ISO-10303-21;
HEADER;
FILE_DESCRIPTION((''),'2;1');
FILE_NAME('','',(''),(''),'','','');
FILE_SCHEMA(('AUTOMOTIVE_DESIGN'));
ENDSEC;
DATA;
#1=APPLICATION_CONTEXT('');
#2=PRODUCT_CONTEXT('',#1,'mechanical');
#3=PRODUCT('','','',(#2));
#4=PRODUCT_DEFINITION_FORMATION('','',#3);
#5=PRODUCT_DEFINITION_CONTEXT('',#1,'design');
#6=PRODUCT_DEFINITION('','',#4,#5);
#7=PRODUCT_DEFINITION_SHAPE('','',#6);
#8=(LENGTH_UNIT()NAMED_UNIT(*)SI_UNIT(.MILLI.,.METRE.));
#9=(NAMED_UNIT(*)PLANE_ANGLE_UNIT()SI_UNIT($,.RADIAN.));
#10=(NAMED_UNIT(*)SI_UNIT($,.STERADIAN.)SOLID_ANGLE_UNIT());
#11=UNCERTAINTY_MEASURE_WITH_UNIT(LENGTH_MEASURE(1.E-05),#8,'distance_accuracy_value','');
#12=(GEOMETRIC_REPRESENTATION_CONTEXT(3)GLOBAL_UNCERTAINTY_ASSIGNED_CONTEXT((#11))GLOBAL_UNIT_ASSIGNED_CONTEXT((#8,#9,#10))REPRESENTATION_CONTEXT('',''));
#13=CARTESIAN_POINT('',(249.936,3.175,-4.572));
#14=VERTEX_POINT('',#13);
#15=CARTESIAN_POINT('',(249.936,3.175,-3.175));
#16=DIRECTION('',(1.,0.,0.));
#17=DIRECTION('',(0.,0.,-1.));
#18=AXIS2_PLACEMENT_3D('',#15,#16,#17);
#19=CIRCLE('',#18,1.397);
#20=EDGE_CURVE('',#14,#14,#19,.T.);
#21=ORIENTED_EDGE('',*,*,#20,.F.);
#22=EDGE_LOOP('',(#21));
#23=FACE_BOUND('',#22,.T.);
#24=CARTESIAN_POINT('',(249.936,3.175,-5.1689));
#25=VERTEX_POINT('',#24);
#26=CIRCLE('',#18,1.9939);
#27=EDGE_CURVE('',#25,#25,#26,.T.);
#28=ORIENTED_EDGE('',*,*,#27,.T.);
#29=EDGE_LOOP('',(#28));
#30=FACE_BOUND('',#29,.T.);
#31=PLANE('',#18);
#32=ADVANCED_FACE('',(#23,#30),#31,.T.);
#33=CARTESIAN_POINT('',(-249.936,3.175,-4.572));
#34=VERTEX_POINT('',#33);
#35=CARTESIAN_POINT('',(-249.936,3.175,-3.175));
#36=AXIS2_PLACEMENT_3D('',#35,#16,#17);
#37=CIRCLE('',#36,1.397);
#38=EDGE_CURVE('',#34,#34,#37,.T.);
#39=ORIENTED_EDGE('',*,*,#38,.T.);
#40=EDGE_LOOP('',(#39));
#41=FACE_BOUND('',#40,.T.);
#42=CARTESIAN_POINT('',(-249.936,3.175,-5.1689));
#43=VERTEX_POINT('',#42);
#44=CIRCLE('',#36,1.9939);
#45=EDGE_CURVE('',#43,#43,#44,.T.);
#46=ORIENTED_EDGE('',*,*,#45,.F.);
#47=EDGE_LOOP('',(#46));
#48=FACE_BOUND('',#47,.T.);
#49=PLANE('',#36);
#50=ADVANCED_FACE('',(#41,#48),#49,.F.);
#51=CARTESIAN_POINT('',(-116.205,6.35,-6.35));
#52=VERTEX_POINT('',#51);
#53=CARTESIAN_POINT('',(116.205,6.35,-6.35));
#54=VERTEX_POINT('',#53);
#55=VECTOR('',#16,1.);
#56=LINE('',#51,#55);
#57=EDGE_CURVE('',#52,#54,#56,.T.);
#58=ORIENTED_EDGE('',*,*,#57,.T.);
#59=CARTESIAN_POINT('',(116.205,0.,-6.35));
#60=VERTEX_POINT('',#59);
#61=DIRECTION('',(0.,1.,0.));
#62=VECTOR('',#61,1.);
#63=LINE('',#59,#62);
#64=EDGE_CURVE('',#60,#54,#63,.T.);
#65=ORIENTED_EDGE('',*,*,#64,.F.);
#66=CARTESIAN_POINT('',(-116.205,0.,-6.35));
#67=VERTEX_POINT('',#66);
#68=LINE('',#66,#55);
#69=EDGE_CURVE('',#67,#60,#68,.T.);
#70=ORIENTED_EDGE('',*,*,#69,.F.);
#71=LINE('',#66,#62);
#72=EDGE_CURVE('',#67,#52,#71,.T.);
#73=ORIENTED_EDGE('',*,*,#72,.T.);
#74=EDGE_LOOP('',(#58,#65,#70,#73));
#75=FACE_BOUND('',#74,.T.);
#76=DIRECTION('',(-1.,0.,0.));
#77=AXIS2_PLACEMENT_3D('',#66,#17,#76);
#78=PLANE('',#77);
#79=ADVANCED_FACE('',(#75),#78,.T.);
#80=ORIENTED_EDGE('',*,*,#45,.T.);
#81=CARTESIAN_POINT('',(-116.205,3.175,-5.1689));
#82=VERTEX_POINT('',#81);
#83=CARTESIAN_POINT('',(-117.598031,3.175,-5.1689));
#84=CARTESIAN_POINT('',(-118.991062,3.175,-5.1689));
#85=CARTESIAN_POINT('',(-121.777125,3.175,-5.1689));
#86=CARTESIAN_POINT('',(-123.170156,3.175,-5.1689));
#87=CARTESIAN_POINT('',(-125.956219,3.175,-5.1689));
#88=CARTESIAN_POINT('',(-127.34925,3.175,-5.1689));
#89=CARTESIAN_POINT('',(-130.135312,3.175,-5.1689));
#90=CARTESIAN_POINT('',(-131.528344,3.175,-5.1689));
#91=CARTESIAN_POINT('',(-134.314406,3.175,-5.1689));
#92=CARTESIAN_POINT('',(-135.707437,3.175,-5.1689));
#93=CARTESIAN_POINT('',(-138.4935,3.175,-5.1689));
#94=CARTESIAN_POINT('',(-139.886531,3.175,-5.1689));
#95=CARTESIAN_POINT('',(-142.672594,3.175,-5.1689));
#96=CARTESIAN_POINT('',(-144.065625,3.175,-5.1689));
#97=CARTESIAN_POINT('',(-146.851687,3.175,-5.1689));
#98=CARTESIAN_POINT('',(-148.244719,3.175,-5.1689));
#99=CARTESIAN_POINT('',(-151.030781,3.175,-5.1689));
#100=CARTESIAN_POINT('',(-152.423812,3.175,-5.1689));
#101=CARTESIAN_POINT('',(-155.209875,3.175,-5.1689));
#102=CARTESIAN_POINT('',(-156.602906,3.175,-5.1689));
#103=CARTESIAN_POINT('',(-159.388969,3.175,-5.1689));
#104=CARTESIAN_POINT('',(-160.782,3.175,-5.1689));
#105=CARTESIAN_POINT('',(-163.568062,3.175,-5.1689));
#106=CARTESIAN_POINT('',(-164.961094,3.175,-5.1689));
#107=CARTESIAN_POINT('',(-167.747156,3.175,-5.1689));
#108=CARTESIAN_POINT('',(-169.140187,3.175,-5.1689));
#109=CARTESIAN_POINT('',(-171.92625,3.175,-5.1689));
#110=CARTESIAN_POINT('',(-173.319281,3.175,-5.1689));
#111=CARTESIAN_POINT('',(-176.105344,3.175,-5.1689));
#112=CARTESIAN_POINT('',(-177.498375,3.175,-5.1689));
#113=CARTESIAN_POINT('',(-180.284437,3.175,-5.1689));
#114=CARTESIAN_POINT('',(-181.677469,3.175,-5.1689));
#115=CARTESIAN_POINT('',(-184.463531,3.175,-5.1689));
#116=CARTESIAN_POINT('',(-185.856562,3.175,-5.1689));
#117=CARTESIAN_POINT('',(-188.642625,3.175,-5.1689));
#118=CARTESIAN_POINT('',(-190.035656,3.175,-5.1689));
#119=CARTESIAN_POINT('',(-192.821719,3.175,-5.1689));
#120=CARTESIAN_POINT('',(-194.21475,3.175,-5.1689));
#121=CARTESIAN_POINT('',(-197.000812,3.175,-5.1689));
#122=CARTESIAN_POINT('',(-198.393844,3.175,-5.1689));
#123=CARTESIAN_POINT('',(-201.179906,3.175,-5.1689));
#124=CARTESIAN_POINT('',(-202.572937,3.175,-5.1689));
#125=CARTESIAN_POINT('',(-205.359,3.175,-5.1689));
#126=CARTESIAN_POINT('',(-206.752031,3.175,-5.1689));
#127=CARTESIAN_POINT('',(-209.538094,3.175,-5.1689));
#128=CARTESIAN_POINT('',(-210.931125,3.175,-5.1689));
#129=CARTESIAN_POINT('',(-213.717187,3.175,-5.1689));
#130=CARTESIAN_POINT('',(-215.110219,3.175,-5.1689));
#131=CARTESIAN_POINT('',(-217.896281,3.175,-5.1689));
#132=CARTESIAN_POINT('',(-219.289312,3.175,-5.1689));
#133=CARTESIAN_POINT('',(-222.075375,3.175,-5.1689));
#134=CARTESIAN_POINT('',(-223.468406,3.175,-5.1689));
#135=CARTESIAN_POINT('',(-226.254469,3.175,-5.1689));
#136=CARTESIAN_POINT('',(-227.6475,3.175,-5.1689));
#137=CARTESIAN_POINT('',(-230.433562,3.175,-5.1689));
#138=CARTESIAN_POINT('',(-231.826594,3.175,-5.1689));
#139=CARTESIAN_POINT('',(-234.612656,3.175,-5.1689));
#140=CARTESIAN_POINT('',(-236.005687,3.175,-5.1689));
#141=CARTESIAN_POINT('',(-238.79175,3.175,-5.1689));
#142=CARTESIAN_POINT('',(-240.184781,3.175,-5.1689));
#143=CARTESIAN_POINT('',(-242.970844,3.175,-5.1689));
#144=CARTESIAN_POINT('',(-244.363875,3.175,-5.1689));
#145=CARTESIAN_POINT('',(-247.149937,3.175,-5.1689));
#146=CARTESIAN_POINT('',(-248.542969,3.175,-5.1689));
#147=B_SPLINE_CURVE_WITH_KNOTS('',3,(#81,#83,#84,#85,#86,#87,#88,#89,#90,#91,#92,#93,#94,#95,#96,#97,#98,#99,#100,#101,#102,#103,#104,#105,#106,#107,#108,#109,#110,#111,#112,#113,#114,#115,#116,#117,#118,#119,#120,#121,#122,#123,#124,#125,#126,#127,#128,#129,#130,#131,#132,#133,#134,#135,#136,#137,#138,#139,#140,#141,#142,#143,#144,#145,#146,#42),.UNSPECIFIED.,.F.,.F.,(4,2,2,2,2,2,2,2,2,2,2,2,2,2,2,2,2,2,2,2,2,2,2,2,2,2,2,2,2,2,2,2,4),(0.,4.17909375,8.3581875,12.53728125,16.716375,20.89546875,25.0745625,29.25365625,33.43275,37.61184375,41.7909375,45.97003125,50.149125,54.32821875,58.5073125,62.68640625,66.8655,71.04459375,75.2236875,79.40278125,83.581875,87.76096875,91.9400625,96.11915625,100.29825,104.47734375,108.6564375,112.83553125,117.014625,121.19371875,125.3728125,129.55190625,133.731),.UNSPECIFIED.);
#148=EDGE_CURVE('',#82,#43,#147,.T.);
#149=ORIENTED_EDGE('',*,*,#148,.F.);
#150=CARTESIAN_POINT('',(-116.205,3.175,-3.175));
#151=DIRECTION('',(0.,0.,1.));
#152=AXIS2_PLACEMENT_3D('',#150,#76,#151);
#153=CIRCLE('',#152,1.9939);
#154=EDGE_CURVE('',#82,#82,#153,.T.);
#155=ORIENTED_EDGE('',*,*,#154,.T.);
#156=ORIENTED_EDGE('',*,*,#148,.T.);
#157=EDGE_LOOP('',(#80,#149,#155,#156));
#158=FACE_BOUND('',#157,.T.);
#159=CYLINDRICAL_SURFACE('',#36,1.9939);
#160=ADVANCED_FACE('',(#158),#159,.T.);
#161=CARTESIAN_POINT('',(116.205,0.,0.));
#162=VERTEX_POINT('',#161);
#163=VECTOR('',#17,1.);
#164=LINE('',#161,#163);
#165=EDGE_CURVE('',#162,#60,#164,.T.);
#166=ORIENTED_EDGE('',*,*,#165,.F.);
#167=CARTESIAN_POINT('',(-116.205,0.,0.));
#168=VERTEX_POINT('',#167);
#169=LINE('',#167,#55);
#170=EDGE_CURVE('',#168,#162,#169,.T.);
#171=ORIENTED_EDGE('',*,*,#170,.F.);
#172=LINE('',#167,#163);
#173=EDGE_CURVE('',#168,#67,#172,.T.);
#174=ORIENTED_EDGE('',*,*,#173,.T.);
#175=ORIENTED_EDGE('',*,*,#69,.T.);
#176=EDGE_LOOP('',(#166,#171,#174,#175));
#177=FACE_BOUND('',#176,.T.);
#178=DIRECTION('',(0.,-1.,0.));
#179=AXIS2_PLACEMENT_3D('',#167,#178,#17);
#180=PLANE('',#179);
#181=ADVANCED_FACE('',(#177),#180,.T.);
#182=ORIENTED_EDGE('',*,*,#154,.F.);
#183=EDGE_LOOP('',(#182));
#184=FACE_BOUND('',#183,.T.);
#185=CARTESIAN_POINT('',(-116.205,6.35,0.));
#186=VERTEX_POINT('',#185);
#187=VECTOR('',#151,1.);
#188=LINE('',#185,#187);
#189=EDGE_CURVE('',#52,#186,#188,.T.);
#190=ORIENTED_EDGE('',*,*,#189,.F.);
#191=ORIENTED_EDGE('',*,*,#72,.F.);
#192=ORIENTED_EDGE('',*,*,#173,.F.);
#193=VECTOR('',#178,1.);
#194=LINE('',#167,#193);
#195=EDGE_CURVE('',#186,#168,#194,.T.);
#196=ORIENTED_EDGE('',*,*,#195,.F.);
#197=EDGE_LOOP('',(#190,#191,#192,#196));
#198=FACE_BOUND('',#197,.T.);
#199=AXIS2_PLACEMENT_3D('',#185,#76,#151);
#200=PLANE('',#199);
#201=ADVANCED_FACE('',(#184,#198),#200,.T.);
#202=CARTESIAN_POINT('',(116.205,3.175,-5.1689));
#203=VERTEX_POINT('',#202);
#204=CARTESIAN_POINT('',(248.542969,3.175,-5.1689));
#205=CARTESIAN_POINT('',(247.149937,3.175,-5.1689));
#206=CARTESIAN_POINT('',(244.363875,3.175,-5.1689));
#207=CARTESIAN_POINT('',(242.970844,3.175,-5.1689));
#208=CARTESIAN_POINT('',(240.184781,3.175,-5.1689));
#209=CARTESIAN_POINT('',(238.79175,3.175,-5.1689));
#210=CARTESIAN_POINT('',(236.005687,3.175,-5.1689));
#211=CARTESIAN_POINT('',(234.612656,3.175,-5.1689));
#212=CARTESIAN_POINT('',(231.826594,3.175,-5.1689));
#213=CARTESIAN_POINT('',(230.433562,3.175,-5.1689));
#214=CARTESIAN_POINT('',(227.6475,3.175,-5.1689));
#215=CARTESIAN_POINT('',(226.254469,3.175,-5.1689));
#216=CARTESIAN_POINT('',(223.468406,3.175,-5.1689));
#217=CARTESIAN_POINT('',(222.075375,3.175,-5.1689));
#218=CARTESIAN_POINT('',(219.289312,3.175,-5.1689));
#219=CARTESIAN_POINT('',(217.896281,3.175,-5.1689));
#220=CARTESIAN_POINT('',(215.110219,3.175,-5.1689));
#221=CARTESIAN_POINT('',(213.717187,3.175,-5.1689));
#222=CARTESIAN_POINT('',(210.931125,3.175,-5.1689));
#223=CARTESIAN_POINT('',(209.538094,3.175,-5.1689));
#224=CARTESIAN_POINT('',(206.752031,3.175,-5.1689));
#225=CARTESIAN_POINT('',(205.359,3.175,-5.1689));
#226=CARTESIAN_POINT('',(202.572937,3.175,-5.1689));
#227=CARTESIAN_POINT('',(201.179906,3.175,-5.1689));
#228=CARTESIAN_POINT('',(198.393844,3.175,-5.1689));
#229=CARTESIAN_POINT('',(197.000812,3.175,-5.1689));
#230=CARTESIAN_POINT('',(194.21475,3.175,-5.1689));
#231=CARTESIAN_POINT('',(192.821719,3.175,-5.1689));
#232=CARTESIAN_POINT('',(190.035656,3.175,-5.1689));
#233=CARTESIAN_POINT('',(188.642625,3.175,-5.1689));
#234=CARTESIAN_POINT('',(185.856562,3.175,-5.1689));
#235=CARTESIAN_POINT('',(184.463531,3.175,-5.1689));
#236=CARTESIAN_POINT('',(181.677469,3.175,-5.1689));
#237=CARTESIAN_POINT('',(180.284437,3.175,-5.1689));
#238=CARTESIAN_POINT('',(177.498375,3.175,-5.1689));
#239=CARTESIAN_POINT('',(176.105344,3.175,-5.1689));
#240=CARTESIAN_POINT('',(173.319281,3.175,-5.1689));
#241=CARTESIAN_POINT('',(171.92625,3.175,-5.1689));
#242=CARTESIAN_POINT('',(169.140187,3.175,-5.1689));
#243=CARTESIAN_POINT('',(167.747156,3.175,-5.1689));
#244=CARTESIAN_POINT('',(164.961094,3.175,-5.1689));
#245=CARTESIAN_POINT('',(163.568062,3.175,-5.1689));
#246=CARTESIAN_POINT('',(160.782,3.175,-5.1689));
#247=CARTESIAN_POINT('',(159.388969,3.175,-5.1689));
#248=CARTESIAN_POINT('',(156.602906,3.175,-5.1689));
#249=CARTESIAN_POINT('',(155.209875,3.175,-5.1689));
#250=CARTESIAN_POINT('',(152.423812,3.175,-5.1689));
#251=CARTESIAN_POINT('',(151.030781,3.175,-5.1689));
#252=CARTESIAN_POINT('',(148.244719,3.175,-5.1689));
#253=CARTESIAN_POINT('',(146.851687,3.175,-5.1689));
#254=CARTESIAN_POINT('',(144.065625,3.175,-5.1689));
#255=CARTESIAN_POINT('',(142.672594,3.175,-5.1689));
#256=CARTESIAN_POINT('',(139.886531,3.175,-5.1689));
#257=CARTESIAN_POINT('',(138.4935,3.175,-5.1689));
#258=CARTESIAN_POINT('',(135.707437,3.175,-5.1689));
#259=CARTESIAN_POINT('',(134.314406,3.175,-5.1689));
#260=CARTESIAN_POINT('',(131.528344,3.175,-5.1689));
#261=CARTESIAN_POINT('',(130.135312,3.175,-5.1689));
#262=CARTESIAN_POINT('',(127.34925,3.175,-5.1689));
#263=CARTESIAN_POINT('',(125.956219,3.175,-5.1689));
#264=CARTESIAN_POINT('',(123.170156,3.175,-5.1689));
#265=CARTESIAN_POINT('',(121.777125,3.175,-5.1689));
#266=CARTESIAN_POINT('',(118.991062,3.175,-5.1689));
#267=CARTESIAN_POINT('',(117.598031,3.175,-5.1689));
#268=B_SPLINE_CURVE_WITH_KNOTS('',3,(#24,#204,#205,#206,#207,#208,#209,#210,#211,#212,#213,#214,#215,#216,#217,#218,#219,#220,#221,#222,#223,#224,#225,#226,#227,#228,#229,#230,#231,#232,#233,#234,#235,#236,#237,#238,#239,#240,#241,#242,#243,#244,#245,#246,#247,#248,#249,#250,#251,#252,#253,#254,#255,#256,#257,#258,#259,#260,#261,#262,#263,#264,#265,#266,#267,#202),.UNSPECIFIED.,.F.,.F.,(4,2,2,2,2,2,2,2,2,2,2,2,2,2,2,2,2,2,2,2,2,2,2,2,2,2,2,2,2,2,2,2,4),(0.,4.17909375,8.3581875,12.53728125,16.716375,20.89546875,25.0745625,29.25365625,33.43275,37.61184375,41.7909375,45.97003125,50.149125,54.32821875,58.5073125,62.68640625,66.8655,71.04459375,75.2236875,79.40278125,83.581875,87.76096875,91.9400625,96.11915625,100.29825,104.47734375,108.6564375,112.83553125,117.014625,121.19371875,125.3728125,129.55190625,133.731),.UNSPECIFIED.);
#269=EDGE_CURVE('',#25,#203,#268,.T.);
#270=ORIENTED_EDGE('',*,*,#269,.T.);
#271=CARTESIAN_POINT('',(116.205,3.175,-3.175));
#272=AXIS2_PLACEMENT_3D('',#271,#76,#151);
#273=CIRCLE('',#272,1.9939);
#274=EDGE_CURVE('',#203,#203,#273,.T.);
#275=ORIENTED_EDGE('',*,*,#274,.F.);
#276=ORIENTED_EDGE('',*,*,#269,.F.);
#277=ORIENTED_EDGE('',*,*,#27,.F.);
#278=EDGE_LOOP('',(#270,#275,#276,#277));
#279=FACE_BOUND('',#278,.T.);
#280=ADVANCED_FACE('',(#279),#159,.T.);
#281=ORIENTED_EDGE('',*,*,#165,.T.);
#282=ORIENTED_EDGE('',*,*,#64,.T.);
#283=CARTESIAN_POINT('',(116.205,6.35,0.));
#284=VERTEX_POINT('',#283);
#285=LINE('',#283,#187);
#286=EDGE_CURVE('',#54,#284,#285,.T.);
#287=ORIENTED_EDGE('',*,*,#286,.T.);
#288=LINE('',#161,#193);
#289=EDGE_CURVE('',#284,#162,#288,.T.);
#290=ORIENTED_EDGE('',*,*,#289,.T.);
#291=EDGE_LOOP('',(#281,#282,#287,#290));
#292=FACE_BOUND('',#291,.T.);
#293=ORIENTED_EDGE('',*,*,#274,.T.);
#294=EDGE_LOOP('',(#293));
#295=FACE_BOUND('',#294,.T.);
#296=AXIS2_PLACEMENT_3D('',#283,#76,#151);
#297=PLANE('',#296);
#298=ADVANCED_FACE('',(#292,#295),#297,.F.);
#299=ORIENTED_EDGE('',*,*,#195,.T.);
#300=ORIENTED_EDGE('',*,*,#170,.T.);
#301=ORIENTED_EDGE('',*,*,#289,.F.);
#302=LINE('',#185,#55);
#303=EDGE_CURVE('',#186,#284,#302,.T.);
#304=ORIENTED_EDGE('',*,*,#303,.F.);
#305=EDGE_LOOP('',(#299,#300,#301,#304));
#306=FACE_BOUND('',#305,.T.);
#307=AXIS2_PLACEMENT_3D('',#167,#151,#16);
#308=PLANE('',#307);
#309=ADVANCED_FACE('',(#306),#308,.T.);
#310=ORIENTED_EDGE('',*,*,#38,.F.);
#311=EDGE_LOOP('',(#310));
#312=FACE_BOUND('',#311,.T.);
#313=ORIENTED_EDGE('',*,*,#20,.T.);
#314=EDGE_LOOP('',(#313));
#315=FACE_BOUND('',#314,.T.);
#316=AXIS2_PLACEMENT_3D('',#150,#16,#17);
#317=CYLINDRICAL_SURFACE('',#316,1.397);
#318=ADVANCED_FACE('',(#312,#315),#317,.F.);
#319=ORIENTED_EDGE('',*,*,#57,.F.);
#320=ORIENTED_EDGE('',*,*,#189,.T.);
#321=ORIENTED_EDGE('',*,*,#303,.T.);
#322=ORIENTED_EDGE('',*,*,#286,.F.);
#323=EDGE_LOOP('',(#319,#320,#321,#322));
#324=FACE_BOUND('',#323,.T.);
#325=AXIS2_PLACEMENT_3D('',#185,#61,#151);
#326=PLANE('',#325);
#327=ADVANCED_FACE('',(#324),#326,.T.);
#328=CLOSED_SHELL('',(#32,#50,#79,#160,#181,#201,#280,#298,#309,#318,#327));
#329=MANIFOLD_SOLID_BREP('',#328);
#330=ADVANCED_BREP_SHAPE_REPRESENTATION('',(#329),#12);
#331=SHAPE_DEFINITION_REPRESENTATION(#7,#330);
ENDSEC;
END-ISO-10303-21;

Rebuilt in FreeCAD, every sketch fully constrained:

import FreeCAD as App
import Part
import Sketcher
from FreeCAD import Vector
Q = App.Units.Quantity

doc = App.newDocument("Part")
body = doc.addObject("PartDesign::Body", "Body")

# Sketch on YZ plane
sketch1 = body.newObject("Sketcher::SketchObject", "Sketch")
sketch1.AttachmentSupport = (doc.getObject("YZ_Plane"), [""])
sketch1.MapMode = "FlatFace"
sketch1.addGeometry([
    Part.LineSegment(Vector(6.35, 0, 0), Vector(0, 0, 0)),  # 0
    Part.LineSegment(Vector(0, 0, 0), Vector(0, -6.35, 0)),  # 1
    Part.LineSegment(Vector(0, -6.35, 0), Vector(6.35, -6.35, 0)),  # 2
    Part.LineSegment(Vector(6.35, -6.35, 0), Vector(6.35, 0, 0)),  # 3
    Part.Circle(Vector(3.175, -3.175, 0), Vector(0, 0, 1), 1.397),  # 4
], False)
sketch1.addConstraint([
    Sketcher.Constraint("Coincident", 0, 2, 1, 1),
    Sketcher.Constraint("Coincident", 1, 2, 2, 1),
    Sketcher.Constraint("Coincident", 2, 2, 3, 1),
    Sketcher.Constraint("Coincident", 3, 2, 0, 1),
    Sketcher.Constraint("Horizontal", 0),
    Sketcher.Constraint("Vertical", 1),
    Sketcher.Constraint("Horizontal", 2),
    Sketcher.Constraint("Vertical", 3),
    Sketcher.Constraint("Coincident", 0, 2, -1, 1),
    Sketcher.Constraint("Equal", 2, 1),
    Sketcher.Constraint("Diameter", 4, Q("0.11 in")),
    Sketcher.Constraint("DistanceX", 0, 2, 0, 1, Q("0.25 in")),
    Sketcher.Constraint("DistanceX", -1, 1, 4, 3, Q("0.125 in")),
    Sketcher.Constraint("DistanceY", 4, 3, -1, 1, Q("0.125 in")),
])
pad1 = body.newObject("PartDesign::Pad", "Pad")
pad1.Profile = sketch1
pad1.Type = "TwoLengths"
pad1.Length = Q("4.575 in")
pad1.Length2 = Q("4.575 in")

# Sketch on YZ plane
sketch2 = body.newObject("Sketcher::SketchObject", "Sketch001")
sketch2.AttachmentSupport = (doc.getObject("YZ_Plane"), [""])
sketch2.MapMode = "FlatFace"
sketch2.addGeometry([
    Part.Circle(Vector(3.175, -3.175, 0), Vector(0, 0, 1), 1.9939),
    Part.Circle(Vector(3.175, -3.175, 0), Vector(0, 0, 1), 1.397),
], False)
sketch2.addConstraint([
    Sketcher.Constraint("Coincident", 1, 3, 0, 3),
    Sketcher.Constraint("Diameter", 1, Q("0.11 in")),
    Sketcher.Constraint("Diameter", 0, Q("0.157 in")),
    Sketcher.Constraint("DistanceX", -1, 1, 0, 3, Q("0.125 in")),
    Sketcher.Constraint("DistanceY", 0, 3, -1, 1, Q("0.125 in")),
])
pad2 = body.newObject("PartDesign::Pad", "Pad001")
pad2.Profile = sketch2
pad2.Type = "TwoLengths"
pad2.Length = Q("9.84 in")
pad2.Length2 = Q("9.84 in")

doc.recompute()
